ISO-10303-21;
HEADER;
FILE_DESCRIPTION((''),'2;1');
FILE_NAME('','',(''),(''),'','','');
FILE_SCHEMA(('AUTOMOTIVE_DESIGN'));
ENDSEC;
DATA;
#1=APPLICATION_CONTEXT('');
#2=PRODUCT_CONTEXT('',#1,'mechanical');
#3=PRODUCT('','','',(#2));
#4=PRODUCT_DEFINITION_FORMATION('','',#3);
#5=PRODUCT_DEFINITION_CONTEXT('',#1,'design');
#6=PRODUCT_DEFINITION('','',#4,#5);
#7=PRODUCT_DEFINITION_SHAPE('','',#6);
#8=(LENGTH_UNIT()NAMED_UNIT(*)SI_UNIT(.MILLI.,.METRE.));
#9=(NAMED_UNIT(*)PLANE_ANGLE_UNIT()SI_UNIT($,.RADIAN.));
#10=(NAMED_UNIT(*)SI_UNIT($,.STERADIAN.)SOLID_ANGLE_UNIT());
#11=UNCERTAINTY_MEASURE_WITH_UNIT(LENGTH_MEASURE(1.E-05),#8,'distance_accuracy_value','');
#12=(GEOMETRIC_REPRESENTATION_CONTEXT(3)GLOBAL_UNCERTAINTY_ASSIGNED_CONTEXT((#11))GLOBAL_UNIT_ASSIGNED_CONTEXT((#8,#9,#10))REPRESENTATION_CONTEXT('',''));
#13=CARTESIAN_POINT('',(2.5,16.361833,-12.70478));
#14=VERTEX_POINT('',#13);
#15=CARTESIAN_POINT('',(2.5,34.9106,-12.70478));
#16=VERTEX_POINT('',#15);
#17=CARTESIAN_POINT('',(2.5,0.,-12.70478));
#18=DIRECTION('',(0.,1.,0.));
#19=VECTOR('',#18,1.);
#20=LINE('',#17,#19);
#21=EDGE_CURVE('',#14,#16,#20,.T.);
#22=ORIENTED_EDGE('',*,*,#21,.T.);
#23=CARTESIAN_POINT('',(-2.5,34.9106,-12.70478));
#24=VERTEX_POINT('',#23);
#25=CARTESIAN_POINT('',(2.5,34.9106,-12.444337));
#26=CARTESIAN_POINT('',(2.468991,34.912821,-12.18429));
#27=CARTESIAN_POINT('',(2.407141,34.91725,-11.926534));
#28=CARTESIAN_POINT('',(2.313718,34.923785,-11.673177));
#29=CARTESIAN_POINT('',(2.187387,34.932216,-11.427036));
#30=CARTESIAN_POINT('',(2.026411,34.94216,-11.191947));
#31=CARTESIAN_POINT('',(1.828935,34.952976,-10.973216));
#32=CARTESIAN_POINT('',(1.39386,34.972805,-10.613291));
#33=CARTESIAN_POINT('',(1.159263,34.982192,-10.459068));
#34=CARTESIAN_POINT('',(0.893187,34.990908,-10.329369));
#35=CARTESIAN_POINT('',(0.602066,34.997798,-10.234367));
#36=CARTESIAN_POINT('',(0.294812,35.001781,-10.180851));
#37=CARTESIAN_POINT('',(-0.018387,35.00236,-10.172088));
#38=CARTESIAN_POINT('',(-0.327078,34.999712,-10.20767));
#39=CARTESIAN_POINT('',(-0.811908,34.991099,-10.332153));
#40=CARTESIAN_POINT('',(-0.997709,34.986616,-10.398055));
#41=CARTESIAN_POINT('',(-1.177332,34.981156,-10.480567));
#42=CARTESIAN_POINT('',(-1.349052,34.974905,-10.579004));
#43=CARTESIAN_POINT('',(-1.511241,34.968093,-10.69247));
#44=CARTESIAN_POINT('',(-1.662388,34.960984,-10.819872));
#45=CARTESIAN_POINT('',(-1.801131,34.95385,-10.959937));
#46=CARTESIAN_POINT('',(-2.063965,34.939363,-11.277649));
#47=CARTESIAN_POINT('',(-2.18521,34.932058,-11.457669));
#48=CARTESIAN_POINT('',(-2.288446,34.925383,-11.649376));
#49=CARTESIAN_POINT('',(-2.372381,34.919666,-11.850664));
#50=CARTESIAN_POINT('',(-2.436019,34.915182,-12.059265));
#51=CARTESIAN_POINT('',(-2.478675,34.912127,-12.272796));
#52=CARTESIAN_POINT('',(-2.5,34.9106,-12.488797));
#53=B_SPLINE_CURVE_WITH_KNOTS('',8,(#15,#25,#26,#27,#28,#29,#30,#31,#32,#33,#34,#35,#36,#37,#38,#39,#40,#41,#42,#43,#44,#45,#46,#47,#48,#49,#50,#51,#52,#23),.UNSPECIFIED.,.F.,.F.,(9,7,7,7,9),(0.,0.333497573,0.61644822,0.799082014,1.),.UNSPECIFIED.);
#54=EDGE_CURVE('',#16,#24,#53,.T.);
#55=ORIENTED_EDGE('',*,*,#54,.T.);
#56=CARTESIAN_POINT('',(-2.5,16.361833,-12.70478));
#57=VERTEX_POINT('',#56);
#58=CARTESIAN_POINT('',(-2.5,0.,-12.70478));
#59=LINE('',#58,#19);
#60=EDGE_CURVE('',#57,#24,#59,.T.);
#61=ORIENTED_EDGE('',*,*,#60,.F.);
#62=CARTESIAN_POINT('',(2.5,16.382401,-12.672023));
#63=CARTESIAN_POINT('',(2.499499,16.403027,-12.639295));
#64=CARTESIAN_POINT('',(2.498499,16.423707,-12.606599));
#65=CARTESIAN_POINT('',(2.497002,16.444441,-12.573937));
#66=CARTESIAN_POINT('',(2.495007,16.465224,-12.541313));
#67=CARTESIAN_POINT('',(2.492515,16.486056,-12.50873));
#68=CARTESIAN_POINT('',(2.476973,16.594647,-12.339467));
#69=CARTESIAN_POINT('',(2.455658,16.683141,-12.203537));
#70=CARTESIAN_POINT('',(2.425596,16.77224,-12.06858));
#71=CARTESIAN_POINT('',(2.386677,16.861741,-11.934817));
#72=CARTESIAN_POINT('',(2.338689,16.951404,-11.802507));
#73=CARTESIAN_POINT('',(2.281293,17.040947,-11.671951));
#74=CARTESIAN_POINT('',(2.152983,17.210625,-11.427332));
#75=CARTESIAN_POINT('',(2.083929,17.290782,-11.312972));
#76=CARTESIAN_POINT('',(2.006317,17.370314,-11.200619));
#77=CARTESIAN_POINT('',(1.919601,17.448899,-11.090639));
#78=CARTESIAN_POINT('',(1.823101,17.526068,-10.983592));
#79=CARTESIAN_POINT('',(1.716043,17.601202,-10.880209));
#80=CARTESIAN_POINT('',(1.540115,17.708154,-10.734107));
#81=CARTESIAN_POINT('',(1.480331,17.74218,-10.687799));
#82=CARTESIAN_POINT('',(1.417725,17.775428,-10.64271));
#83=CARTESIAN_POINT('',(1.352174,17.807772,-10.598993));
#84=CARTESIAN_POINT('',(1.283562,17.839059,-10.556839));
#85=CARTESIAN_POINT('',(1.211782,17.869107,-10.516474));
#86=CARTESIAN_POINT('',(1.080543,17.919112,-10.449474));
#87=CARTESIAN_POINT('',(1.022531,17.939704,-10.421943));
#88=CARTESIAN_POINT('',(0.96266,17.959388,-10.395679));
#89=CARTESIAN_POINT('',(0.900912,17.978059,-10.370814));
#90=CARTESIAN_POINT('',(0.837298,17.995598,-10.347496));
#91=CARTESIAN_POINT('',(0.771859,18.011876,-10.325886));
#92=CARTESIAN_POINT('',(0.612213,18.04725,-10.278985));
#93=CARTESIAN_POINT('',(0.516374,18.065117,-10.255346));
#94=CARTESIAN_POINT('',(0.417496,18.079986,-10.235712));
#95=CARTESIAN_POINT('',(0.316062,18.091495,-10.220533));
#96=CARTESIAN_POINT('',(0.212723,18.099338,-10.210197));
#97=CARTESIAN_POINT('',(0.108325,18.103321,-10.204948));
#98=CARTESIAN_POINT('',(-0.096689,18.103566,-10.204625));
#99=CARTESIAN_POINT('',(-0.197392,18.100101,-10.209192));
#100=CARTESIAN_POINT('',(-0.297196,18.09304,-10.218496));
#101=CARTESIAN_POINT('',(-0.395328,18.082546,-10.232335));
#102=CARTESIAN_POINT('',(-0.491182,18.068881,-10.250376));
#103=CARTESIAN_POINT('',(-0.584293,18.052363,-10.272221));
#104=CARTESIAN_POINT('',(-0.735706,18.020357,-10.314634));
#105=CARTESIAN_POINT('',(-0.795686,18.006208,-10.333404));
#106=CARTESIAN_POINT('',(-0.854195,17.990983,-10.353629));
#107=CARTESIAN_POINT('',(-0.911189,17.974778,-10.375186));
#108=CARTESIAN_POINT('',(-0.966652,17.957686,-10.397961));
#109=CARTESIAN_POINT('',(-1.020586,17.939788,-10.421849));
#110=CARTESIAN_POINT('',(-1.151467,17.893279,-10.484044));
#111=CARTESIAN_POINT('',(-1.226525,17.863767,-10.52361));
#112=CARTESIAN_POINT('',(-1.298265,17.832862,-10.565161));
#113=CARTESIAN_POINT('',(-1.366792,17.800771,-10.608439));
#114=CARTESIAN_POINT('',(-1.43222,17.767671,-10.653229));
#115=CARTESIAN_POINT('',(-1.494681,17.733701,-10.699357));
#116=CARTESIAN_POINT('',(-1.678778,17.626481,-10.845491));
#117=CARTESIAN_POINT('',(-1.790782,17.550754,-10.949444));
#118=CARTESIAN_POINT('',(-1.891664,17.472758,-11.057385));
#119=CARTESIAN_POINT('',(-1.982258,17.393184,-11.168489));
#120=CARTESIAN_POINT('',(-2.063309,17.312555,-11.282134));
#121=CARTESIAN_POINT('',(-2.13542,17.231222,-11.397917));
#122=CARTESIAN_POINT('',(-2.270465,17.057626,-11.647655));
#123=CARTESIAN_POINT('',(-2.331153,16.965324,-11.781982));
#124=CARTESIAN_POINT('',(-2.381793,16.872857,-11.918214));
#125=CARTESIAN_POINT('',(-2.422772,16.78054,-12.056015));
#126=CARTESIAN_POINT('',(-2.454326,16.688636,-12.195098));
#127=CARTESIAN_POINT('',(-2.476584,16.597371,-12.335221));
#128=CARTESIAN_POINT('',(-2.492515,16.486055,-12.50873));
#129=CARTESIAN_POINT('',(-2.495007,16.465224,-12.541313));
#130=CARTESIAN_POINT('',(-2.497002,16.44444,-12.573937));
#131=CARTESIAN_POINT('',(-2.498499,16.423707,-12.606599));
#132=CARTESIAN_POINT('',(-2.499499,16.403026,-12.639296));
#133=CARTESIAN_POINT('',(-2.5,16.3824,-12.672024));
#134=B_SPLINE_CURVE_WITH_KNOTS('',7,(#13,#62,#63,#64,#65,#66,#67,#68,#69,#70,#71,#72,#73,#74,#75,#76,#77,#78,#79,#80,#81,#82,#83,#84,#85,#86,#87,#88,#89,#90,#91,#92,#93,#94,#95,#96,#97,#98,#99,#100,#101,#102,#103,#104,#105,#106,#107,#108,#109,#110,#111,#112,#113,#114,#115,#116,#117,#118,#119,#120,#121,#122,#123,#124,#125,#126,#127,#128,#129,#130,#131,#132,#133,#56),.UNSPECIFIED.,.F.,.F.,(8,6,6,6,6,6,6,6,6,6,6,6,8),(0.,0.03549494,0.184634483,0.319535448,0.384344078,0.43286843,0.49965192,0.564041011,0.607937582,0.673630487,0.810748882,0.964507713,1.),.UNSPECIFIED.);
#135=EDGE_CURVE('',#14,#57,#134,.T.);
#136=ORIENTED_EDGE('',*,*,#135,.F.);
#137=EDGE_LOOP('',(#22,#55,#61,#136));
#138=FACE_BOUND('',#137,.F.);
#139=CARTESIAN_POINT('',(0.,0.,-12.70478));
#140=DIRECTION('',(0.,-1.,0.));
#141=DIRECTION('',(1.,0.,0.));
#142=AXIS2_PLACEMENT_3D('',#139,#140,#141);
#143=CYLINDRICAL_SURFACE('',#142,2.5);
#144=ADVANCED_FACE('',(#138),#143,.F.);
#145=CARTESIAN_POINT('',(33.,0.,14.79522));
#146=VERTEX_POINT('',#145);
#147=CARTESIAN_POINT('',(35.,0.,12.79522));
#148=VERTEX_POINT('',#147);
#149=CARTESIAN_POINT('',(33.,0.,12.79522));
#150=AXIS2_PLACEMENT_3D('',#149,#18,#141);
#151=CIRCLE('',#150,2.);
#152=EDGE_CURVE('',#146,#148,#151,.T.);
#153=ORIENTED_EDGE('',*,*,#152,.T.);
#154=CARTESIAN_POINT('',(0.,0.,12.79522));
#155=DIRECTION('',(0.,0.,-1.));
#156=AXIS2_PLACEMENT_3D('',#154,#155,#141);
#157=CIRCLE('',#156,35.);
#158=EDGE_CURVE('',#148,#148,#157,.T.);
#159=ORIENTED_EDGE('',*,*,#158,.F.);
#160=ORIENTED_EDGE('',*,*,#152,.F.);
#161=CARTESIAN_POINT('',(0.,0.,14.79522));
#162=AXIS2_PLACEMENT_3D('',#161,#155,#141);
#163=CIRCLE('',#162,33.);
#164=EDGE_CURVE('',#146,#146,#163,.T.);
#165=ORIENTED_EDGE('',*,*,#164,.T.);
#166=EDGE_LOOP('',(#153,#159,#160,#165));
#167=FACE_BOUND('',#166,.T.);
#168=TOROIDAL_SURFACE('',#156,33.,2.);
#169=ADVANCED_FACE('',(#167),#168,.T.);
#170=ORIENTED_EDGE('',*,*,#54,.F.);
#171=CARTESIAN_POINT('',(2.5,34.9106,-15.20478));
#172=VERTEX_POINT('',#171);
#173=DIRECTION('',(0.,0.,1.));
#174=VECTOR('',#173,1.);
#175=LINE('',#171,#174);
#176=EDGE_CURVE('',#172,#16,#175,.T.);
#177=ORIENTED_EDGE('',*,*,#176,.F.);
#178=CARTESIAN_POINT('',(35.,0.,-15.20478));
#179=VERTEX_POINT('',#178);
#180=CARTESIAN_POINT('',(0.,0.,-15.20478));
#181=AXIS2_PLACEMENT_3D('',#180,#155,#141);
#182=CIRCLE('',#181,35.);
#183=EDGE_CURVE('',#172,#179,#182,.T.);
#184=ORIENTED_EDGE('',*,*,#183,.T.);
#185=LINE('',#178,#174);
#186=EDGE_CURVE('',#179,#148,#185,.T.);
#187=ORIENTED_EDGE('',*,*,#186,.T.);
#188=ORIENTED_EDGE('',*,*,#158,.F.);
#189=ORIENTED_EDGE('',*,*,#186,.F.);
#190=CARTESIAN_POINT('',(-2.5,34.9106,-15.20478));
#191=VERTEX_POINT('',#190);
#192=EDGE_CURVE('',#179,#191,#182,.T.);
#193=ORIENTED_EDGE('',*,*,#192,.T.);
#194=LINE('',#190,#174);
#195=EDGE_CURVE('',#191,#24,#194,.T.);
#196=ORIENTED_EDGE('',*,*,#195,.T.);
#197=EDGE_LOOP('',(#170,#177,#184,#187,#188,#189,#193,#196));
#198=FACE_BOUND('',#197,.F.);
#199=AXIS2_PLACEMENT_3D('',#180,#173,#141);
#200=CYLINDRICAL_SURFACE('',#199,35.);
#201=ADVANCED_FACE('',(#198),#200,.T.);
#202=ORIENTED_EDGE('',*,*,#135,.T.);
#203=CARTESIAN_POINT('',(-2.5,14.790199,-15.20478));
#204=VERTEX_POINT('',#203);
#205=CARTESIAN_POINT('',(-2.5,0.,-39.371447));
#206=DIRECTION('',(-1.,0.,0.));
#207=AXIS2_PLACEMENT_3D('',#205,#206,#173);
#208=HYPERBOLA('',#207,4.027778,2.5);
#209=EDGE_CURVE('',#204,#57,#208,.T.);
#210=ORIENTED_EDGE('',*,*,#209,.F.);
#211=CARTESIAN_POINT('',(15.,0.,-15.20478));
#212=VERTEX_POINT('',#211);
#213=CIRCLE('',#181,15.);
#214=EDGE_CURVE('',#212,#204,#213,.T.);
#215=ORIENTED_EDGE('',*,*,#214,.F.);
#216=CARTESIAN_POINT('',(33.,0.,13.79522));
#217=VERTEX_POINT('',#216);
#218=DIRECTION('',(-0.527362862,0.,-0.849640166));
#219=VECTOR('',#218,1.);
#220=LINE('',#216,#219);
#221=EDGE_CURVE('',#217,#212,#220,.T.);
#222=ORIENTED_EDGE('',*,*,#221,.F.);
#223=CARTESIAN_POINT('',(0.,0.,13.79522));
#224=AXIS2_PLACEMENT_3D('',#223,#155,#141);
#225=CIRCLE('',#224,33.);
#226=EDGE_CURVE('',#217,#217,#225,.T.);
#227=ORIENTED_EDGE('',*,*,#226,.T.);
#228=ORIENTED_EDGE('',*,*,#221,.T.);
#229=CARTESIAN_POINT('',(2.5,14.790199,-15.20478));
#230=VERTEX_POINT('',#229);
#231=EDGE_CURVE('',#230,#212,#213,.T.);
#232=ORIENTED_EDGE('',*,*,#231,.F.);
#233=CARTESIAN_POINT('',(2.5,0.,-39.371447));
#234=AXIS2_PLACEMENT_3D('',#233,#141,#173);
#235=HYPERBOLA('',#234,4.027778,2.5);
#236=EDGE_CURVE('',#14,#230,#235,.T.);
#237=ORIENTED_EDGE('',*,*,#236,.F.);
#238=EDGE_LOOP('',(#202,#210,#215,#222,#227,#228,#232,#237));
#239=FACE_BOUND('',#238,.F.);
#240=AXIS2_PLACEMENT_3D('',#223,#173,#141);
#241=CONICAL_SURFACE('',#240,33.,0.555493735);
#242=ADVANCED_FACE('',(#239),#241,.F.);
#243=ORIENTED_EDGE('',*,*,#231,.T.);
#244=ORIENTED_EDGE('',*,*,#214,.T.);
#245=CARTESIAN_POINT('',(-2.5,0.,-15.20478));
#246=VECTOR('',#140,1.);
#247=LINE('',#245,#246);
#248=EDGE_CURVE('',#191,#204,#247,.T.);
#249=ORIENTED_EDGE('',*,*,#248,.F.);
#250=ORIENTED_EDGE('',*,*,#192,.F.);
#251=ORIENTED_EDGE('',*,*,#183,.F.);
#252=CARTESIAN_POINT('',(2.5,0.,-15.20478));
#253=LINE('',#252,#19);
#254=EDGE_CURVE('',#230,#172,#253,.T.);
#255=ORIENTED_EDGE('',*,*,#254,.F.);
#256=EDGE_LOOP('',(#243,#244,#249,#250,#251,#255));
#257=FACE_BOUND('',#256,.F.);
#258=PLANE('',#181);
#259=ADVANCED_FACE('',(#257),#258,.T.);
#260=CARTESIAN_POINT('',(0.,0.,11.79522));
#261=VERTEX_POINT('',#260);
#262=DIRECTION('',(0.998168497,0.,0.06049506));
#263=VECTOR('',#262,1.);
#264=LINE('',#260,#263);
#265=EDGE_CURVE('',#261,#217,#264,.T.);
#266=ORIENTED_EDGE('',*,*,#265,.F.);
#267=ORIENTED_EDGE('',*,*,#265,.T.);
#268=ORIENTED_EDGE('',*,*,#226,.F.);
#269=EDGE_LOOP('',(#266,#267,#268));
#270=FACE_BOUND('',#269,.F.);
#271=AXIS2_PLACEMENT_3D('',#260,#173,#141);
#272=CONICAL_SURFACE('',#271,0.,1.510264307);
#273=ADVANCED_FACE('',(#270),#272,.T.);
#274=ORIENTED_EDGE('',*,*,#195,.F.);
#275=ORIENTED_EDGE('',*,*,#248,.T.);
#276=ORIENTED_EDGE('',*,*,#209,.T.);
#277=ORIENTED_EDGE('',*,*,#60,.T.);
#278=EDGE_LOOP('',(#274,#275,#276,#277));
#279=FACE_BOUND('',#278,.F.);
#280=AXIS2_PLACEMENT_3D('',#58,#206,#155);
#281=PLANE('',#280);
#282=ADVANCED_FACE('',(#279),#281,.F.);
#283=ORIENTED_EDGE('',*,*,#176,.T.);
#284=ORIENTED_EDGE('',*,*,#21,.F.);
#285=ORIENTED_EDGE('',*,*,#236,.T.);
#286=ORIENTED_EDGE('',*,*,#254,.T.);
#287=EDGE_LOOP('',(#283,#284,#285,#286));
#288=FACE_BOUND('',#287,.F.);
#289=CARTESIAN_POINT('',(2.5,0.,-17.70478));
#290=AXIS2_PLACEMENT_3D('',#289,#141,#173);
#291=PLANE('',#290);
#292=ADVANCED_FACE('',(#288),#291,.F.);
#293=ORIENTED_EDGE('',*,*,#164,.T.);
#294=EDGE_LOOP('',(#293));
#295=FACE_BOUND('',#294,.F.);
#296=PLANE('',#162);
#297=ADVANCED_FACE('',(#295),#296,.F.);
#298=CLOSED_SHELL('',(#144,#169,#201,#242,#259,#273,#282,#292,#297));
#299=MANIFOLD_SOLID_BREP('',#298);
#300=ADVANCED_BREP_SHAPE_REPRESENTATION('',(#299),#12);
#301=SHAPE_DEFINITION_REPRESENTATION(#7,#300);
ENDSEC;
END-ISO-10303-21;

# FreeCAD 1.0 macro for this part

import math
import FreeCAD as App
import Part
import Sketcher


def edges_at(feature, points):
    """Names of the edges that pass closest to the given points."""
    edges = feature.Shape.Edges
    near = lambda p: min(range(len(edges)), key=lambda i: edges[i].distToShape(Part.Vertex(*p))[0])
    return sorted({f"Edge{near(p) + 1}" for p in points})


def add_polygon(sketch, points):
    """Adds a closed chain of lines whose ends are joined by coincident constraints."""
    first, n = sketch.GeometryCount, len(points)
    for a, b in zip(points, points[1:] + points[:1]):
        sketch.addGeometry(Part.LineSegment(App.Vector(*a, 0), App.Vector(*b, 0)), False)
    for i in range(n):
        sketch.addConstraint(Sketcher.Constraint("Coincident", first + i, 2, first + (i + 1) % n, 1))

doc = App.newDocument("Part")
params = doc.addObject("Spreadsheet::Sheet", "Params")
for row, (alias, value) in enumerate([
    ("sketch1_width", "35 mm"),
    ("sketch1_width2", "20 mm"),
    ("sketch1_height", "3 mm"),
    ("sketch1_height2", "30 mm"),
    ("revolution_angle", "360 deg"),
    ("fillet_radius", "2 mm"),
    ("sketch2_radius", "2.5 mm"),
    ("pocket1_length", "50 mm"),
], start=1):
    params.set(f"A{row}", alias)
    params.set(f"B{row}", "=" + value)
    params.setAlias(f"B{row}", alias)

body = doc.addObject("PartDesign::Body", "Body")

# Sketch on XZ plane
sketch1 = body.newObject("Sketcher::SketchObject", "Sketch")
sketch1.AttachmentSupport = (doc.getObject("XZ_Plane"), [""])
sketch1.MapMode = "FlatFace"
add_polygon(sketch1, [(35, 14.8), (0, 14.8), (0, 11.8), (33, 13.8), (15, -15.2), (35, -15.2)])  # lines 0-5
sketch1.addConstraint([
    Sketcher.Constraint("Horizontal", 0),
    Sketcher.Constraint("Vertical", 1),
    Sketcher.Constraint("Horizontal", 4),
    Sketcher.Constraint("Vertical", 5),
    Sketcher.Constraint("PointOnObject", 0, 2, -2),
    Sketcher.Constraint("DistanceX", 0, 2, 0, 1, 35.0),
    Sketcher.Constraint("DistanceX", 4, 1, 4, 2, 20.0),
    Sketcher.Constraint("DistanceY", 1, 2, 1, 1, 3.0),
    Sketcher.Constraint("DistanceY", 5, 1, 5, 2, 30.0),
    Sketcher.Constraint("DistanceX", -1, 1, 2, 2, 33.0),
    Sketcher.Constraint("DistanceY", 2, 2, 0, 2, 1.0),
    Sketcher.Constraint("DistanceY", -1, 1, 0, 2, 14.79522),
])
sketch1.setExpression("Constraints[11]", "Params.sketch1_width")
sketch1.setExpression("Constraints[12]", "Params.sketch1_width2")
sketch1.setExpression("Constraints[13]", "Params.sketch1_height")
sketch1.setExpression("Constraints[14]", "Params.sketch1_height2")
revolution = body.newObject("PartDesign::Revolution", "Revolution")
revolution.Profile = sketch1
revolution.ReferenceAxis = (sketch1, ["V_Axis"])
revolution.setExpression("Angle", "Params.revolution_angle")
doc.recompute()

fillet = body.newObject("PartDesign::Fillet", "Fillet")
fillet.Base = (revolution, edges_at(revolution, [(-35, 0, 14.795)]))
fillet.setExpression("Radius", "Params.fillet_radius")

# Sketch on XZ plane
sketch2 = body.newObject("Sketcher::SketchObject", "Sketch001")
sketch2.AttachmentSupport = (doc.getObject("XZ_Plane"), [""])
sketch2.MapMode = "FlatFace"
sketch2.addGeometry([
    Part.ArcOfCircle(Part.Circle(App.Vector(0, -12.7, 0), App.Vector(0, 0, 1), 2.5), math.radians(0), math.radians(180)),
    Part.LineSegment(App.Vector(-2.5, -12.7, 0), App.Vector(-2.5, -17.7, 0)),
    Part.LineSegment(App.Vector(-2.5, -17.7, 0), App.Vector(2.5, -17.7, 0)),
    Part.LineSegment(App.Vector(2.5, -17.7, 0), App.Vector(2.5, -12.7, 0)),
], False)
sketch2.addConstraint([
    Sketcher.Constraint("Tangent", 0, 2, 1, 1),
    Sketcher.Constraint("Coincident", 1, 2, 2, 1),
    Sketcher.Constraint("Coincident", 2, 2, 3, 1),
    Sketcher.Constraint("Tangent", 3, 2, 0, 1),
    Sketcher.Constraint("Vertical", 1),
    Sketcher.Constraint("Horizontal", 2),
    Sketcher.Constraint("Vertical", 3),
    Sketcher.Constraint("PointOnObject", 0, 3, -2),
    Sketcher.Constraint("Equal", 2, 1),
    Sketcher.Constraint("Radius", 0, 2.5),
    Sketcher.Constraint("DistanceY", 0, 3, -1, 1, 12.70478),
])
sketch2.setExpression("Constraints[9]", "Params.sketch2_radius")
pocket1 = body.newObject("PartDesign::Pocket", "Pocket")
pocket1.Profile = sketch2
pocket1.setExpression("Length", "Params.pocket1_length")

doc.recompute()
